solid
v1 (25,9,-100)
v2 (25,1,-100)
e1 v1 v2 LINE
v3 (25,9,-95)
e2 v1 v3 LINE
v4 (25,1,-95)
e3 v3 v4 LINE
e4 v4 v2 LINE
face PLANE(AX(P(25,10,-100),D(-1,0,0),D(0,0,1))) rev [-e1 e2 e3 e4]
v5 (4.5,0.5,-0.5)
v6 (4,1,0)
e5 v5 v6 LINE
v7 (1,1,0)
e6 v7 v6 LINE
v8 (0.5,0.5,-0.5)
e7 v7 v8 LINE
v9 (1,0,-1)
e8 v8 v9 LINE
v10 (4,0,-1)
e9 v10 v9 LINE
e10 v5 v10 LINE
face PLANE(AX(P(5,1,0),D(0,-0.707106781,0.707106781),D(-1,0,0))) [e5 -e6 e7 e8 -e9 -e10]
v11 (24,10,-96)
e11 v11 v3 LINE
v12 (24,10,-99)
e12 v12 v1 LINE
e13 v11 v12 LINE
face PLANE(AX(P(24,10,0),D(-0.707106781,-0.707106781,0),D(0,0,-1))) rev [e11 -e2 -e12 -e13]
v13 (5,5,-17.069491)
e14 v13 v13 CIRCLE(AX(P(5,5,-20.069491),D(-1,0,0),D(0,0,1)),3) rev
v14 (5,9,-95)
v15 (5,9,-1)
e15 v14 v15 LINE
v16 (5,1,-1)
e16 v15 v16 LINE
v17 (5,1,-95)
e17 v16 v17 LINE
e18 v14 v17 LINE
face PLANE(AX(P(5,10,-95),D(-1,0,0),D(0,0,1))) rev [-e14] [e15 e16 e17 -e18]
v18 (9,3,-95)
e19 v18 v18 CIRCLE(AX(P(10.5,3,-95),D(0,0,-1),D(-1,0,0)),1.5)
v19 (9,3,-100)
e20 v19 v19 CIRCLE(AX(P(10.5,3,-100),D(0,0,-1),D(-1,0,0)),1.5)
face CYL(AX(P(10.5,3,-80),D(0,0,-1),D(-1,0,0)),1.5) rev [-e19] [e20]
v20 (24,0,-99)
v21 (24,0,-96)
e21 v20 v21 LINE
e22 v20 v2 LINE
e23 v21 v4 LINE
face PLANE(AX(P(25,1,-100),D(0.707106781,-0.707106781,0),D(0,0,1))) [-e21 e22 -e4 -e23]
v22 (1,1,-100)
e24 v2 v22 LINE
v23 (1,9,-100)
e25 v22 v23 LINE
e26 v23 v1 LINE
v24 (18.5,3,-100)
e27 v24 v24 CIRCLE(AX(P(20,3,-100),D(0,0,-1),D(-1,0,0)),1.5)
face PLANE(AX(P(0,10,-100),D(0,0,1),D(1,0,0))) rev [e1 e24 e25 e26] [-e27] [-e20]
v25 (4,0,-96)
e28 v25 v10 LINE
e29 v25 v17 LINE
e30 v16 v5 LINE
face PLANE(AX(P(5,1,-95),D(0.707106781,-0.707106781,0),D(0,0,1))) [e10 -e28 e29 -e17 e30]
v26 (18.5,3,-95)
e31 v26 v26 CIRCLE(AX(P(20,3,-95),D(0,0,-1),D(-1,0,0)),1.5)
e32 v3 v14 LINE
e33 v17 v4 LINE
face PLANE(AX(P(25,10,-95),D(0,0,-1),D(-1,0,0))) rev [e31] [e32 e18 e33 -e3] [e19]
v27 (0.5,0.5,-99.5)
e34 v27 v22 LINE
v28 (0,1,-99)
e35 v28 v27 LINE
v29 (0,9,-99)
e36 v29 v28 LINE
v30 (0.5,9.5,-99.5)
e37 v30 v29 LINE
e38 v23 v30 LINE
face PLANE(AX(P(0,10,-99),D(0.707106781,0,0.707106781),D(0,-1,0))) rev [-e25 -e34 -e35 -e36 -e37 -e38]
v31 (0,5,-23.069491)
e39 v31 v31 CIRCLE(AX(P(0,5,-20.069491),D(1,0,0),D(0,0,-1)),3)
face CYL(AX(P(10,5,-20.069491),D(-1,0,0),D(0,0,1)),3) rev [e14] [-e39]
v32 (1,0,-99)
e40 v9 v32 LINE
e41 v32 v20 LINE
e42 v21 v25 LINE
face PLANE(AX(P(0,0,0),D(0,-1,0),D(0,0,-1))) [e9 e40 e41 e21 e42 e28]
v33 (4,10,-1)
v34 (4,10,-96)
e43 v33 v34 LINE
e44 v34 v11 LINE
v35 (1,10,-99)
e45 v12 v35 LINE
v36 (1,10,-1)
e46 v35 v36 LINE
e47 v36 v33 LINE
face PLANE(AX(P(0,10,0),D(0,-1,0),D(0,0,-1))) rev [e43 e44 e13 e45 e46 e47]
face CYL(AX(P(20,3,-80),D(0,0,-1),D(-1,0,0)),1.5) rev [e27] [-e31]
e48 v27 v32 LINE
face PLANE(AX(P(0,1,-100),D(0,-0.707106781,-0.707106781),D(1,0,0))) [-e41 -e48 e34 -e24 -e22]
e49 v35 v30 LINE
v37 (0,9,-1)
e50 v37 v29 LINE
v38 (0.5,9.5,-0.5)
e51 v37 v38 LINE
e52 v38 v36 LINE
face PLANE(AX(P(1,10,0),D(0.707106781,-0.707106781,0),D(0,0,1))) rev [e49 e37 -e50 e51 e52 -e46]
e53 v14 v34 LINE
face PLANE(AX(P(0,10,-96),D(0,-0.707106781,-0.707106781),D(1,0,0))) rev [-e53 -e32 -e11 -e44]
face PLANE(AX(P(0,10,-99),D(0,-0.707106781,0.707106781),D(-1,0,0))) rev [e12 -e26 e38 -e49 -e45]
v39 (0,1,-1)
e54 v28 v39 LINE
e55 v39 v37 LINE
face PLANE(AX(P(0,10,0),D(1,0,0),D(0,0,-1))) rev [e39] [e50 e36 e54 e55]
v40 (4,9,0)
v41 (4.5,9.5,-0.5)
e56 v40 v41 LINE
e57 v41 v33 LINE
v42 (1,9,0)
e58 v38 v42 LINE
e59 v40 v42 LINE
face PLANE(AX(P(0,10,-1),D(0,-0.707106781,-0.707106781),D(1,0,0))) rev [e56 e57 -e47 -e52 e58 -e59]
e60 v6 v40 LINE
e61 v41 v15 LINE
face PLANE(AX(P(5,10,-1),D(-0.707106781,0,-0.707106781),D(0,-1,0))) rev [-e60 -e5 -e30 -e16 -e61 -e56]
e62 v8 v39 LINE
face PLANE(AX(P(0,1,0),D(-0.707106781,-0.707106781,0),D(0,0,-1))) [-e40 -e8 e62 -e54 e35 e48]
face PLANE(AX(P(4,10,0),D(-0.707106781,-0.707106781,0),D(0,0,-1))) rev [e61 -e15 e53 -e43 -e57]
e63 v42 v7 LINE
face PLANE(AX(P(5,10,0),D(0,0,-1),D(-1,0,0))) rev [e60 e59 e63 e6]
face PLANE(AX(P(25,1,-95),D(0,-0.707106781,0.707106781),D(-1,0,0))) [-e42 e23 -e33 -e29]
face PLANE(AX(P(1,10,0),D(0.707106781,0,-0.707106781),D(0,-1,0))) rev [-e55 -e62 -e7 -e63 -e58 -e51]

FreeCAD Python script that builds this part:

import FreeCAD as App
import Part
import Sketcher
from FreeCAD import Vector
Q = App.Units.Quantity


def edges_at(feature, points):
    """Names of the edges that pass closest to the given points."""
    edges = feature.Shape.Edges
    near = lambda p: min(range(len(edges)), key=lambda i: edges[i].distToShape(Part.Vertex(*p))[0])
    return sorted({f"Edge{near(p) + 1}" for p in points})


def add_polygon(sketch, points):
    """Adds a closed chain of lines whose ends are joined by coincident constraints."""
    first, n = sketch.GeometryCount, len(points)
    for a, b in zip(points, points[1:] + points[:1]):
        sketch.addGeometry(Part.LineSegment(App.Vector(*a, 0), App.Vector(*b, 0)), False)
    for i in range(n):
        sketch.addConstraint(Sketcher.Constraint("Coincident", first + i, 2, first + (i + 1) % n, 1))

doc = App.newDocument("Part")
body = doc.addObject("PartDesign::Body", "Body")

# Sketch on XZ plane
sketch1 = body.newObject("Sketcher::SketchObject", "Sketch")
sketch1.AttachmentSupport = (doc.getObject("XZ_Plane"), [""])
sketch1.MapMode = "FlatFace"
add_polygon(sketch1, [(0, -100), (0, 0), (5, 0), (5, -95), (25, -95), (25, -100)])  # lines 0-5
sketch1.addConstraint(Sketcher.Constraint("Vertical", 0))
sketch1.addConstraint(Sketcher.Constraint("Horizontal", 1))
sketch1.addConstraint(Sketcher.Constraint("Vertical", 2))
sketch1.addConstraint(Sketcher.Constraint("Horizontal", 3))
sketch1.addConstraint(Sketcher.Constraint("Vertical", 4))
sketch1.addConstraint(Sketcher.Constraint("Horizontal", 5))
sketch1.addConstraint(Sketcher.Constraint("Coincident", 0, 2, -1, 1))
sketch1.addConstraint(Sketcher.Constraint("Equal", 1, 4))
sketch1.addConstraint(Sketcher.Constraint("DistanceX", 1, 1, 1, 2, Q("5 mm")))
sketch1.addConstraint(Sketcher.Constraint("DistanceX", 3, 1, 3, 2, Q("20 mm")))
sketch1.addConstraint(Sketcher.Constraint("DistanceY", 0, 1, 0, 2, Q("100 mm")))
pad1 = body.newObject("PartDesign::Pad", "Pad")
pad1.Profile = sketch1
pad1.Length = 10
pad1.Reversed = True

# Sketch on YZ plane
sketch2 = body.newObject("Sketcher::SketchObject", "Sketch001")
sketch2.AttachmentSupport = (doc.getObject("YZ_Plane"), [""])
sketch2.MapMode = "FlatFace"
sketch2.addGeometry(Part.Circle(Vector(5, -20.1, 0), Vector(0, 0, 1), 3), False)
sketch2.addConstraint(Sketcher.Constraint("Diameter", 0, Q("6 mm")))
sketch2.addConstraint(Sketcher.Constraint("DistanceX", -1, 1, 0, 3, Q("5 mm")))
sketch2.addConstraint(Sketcher.Constraint("DistanceY", 0, 3, -1, 1, Q("20.069491 mm")))
pocket1 = body.newObject("PartDesign::Pocket", "Pocket")
pocket1.Profile = sketch2
pocket1.Length = 10
pocket1.Reversed = True

# Sketch on XY plane
sketch3 = body.newObject("Sketcher::SketchObject", "Sketch002")
sketch3.AttachmentSupport = (doc.getObject("XY_Plane"), [""])
sketch3.MapMode = "FlatFace"
sketch3.AttachmentOffset = App.Placement(Vector(0, 0, -100), App.Rotation())
sketch3.addGeometry(Part.Circle(Vector(20, 3, 0), Vector(0, 0, 1), 1.5), False)
sketch3.addGeometry(Part.Circle(Vector(10.5, 3, 0), Vector(0, 0, 1), 1.5), False)
sketch3.addConstraint(Sketcher.Constraint("Equal", 0, 1))
sketch3.addConstraint(Sketcher.Constraint("Horizontal", 0, 3, 1, 3))
sketch3.addConstraint(Sketcher.Constraint("Diameter", 0, Q("3 mm")))
sketch3.addConstraint(Sketcher.Constraint("DistanceX", -1, 1, 0, 3, Q("20 mm")))
sketch3.addConstraint(Sketcher.Constraint("DistanceY", -1, 1, 0, 3, Q("3 mm")))
sketch3.addConstraint(Sketcher.Constraint("DistanceX", -1, 1, 1, 3, Q("10.5 mm")))
pocket2 = body.newObject("PartDesign::Pocket", "Pocket001")
pocket2.Profile = sketch3
pocket2.Length = 20
pocket2.Reversed = True
doc.recompute()

chamfer = body.newObject("PartDesign::Chamfer", "Chamfer")
chamfer.Base = (pocket2, edges_at(pocket2, [
    (15, 10, -95),
    (25, 10, -97.5),
    (12.5, 10, -100),
    (0, 10, -50),
    (2.5, 10, 0),
    (5, 10, -47.5),
]))
chamfer.Size = 1
doc.recompute()

chamfer2 = body.newObject("PartDesign::Chamfer", "Chamfer001")
chamfer2.Base = (chamfer, edges_at(chamfer, [
    (0, 0, -50),
    (12.5, 0, -100),
    (25, 0, -97.5),
    (15, 0, -95),
    (5, 0, -47.5),
    (2.5, 0, 0),
]))
chamfer2.Size = 1
doc.recompute()

chamfer3 = body.newObject("PartDesign::Chamfer", "Chamfer002")
chamfer3.Base = (chamfer2, edges_at(chamfer2, [(0, 5, -100)]))
chamfer3.Size = 1
doc.recompute()

chamfer4 = body.newObject("PartDesign::Chamfer", "Chamfer003")
chamfer4.Base = (chamfer3, edges_at(chamfer3, [(0, 5, 0), (5, 5, 0)]))
chamfer4.Size = 1

doc.recompute()
